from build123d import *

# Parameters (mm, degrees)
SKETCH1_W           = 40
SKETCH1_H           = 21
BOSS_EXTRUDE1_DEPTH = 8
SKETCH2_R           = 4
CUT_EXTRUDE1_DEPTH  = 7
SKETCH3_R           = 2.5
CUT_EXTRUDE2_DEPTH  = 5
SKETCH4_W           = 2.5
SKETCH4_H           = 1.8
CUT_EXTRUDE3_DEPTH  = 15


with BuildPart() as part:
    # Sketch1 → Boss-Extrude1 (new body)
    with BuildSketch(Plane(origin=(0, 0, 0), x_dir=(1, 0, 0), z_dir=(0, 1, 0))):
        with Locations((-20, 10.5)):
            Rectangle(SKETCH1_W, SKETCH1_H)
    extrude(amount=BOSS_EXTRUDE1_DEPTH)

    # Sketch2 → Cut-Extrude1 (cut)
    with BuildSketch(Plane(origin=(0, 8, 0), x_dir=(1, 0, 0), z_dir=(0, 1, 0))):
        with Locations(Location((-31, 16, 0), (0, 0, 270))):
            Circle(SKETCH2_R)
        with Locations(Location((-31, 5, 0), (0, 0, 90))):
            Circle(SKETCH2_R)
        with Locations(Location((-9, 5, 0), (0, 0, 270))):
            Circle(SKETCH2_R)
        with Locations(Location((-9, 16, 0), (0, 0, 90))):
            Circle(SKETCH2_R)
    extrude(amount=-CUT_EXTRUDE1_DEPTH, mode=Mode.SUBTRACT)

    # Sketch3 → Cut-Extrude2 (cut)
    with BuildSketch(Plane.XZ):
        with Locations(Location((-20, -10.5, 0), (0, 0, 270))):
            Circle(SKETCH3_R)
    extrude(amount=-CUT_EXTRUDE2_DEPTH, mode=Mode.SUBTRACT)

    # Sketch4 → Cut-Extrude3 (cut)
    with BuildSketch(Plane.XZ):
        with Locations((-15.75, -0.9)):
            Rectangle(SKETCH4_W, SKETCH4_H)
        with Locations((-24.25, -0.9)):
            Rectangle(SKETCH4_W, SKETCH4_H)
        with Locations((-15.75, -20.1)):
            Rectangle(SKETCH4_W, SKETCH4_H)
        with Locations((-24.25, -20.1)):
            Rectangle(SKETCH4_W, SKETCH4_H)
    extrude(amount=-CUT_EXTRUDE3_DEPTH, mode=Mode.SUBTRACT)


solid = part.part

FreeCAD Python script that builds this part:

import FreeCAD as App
import Part
import Sketcher

V = App.Vector


def add_polygon(sketch, points):
    """Adds a closed chain of lines whose ends are joined by coincident constraints."""
    first, n = sketch.GeometryCount, len(points)
    for a, b in zip(points, points[1:] + points[:1]):
        sketch.addGeometry(Part.LineSegment(App.Vector(*a, 0), App.Vector(*b, 0)), False)
    for i in range(n):
        sketch.addConstraint(Sketcher.Constraint("Coincident", first + i, 2, first + (i + 1) % n, 1))

doc = App.newDocument("Part")
body = doc.addObject("PartDesign::Body", "Body")

sketch1 = body.newObject("Sketcher::SketchObject", "Sketch")
sketch1.AttachmentSupport = (doc.getObject("XZ_Plane"), [""])
sketch1.MapMode = "FlatFace"
add_polygon(sketch1, [(-40, -21), (-40, 0), (0, 0), (0, -21)])
sketch1.addConstraint([
    Sketcher.Constraint("Vertical", 0),
    Sketcher.Constraint("Horizontal", 1),
    Sketcher.Constraint("Vertical", 2),
    Sketcher.Constraint("Horizontal", 3),
    Sketcher.Constraint("Coincident", 1, 2, -1, 1),
    Sketcher.Constraint("DistanceX", 1, 1, 1, 2, 40.0),
    Sketcher.Constraint("DistanceY", 0, 1, 0, 2, 21.0),
])
pad1 = body.newObject("PartDesign::Pad", "Pad")
pad1.Profile = sketch1
pad1.Length = 8
pad1.Reversed = True

sketch2 = body.newObject("Sketcher::SketchObject", "Sketch001")
sketch2.AttachmentSupport = (doc.getObject("XZ_Plane"), [""])
sketch2.MapMode = "FlatFace"
sketch2.AttachmentOffset = App.Placement(V(0, 0, -8), App.Rotation())
sketch2.addGeometry([
    Part.Circle(V(-31, -16, 0), V(0, 0, 1), 4),
    Part.Circle(V(-31, -5, 0), V(0, 0, 1), 4),
    Part.Circle(V(-9, -5, 0), V(0, 0, 1), 4),
    Part.Circle(V(-9, -16, 0), V(0, 0, 1), 4),
], False)
sketch2.addConstraint([
    Sketcher.Constraint("Equal", 0, 1),
    Sketcher.Constraint("Equal", 1, 2),
    Sketcher.Constraint("Equal", 2, 3),
    Sketcher.Constraint("Horizontal", 1, 3, 2, 3),
    Sketcher.Constraint("Horizontal", 0, 3, 3, 3),
    Sketcher.Constraint("Vertical", 0, 3, 1, 3),
    Sketcher.Constraint("Vertical", 2, 3, 3, 3),
    Sketcher.Constraint("Diameter", 0, 8.0),
    Sketcher.Constraint("DistanceX", 0, 3, -1, 1, 31.0),
    Sketcher.Constraint("DistanceY", 0, 3, -1, 1, 16.0),
    Sketcher.Constraint("DistanceY", 1, 3, -1, 1, 5.0),
    Sketcher.Constraint("DistanceX", 2, 3, -1, 1, 9.0),
])
pocket1 = body.newObject("PartDesign::Pocket", "Pocket")
pocket1.Profile = sketch2
pocket1.Length = 7
pocket1.Reversed = True

sketch3 = body.newObject("Sketcher::SketchObject", "Sketch002")
sketch3.AttachmentSupport = (doc.getObject("XZ_Plane"), [""])
sketch3.MapMode = "FlatFace"
sketch3.addGeometry(Part.Circle(V(-20, -10.5, 0), V(0, 0, 1), 2.5), False)
sketch3.addConstraint([
    Sketcher.Constraint("Diameter", 0, 5.0),
    Sketcher.Constraint("DistanceX", 0, 3, -1, 1, 20.0),
    Sketcher.Constraint("DistanceY", 0, 3, -1, 1, 10.5),
])
pocket2 = body.newObject("PartDesign::Pocket", "Pocket001")
pocket2.Profile = sketch3
pocket2.Length = 5

sketch4 = body.newObject("Sketcher::SketchObject", "Sketch003")
sketch4.AttachmentSupport = (doc.getObject("XZ_Plane"), [""])
sketch4.MapMode = "FlatFace"
add_polygon(sketch4, [(-17, 0), (-17, -1.8), (-14.5, -1.8), (-14.5, 0)])
add_polygon(sketch4, [(-25.5, 0), (-25.5, -1.8), (-23, -1.8), (-23, 0)])
add_polygon(sketch4, [(-17, -19.2), (-17, -21), (-14.5, -21), (-14.5, -19.2)])
add_polygon(sketch4, [(-25.5, -19.2), (-25.5, -21), (-23, -21), (-23, -19.2)])
sketch4.addConstraint([
    Sketcher.Constraint("Vertical", 0),
    Sketcher.Constraint("Horizontal", 1),
    Sketcher.Constraint("Vertical", 2),
    Sketcher.Constraint("Horizontal", 3),
    Sketcher.Constraint("Vertical", 4),
    Sketcher.Constraint("Horizontal", 5),
    Sketcher.Constraint("Vertical", 6),
    Sketcher.Constraint("Horizontal", 7),
    Sketcher.Constraint("Vertical", 8),
    Sketcher.Constraint("Horizontal", 9),
    Sketcher.Constraint("Vertical", 10),
    Sketcher.Constraint("Horizontal", 11),
    Sketcher.Constraint("Vertical", 12),
    Sketcher.Constraint("Horizontal", 13),
    Sketcher.Constraint("Vertical", 14),
    Sketcher.Constraint("Horizontal", 15),
    Sketcher.Constraint("PointOnObject", 2, 2, -1),
    Sketcher.Constraint("PointOnObject", 6, 2, -1),
    Sketcher.Constraint("Horizontal", 1, 2, 4, 2),
    Sketcher.Constraint("Horizontal", 9, 2, 12, 2),
    Sketcher.Constraint("Horizontal", 11, 2, 14, 2),
    Sketcher.Constraint("Vertical", 3, 2, 8, 2),
    Sketcher.Constraint("Vertical", 2, 2, 9, 2),
    Sketcher.Constraint("Vertical", 7, 2, 12, 2),
    Sketcher.Constraint("Vertical", 6, 2, 13, 2),
    Sketcher.Constraint("Equal", 3, 5),
    Sketcher.Constraint("Equal", 6, 8),
    Sketcher.Constraint("DistanceX", 1, 1, 1, 2, 2.5),
    Sketcher.Constraint("DistanceY", 0, 2, 0, 1, 1.8),
    Sketcher.Constraint("DistanceX", 0, 2, -1, 1, 17.0),
    Sketcher.Constraint("DistanceX", 5, 2, -1, 1, 23.0),
    Sketcher.Constraint("DistanceY", 8, 2, -1, 1, 21.0),
])
pocket3 = body.newObject("PartDesign::Pocket", "Pocket002")
pocket3.Profile = sketch4
pocket3.Length = 15

doc.recompute()
